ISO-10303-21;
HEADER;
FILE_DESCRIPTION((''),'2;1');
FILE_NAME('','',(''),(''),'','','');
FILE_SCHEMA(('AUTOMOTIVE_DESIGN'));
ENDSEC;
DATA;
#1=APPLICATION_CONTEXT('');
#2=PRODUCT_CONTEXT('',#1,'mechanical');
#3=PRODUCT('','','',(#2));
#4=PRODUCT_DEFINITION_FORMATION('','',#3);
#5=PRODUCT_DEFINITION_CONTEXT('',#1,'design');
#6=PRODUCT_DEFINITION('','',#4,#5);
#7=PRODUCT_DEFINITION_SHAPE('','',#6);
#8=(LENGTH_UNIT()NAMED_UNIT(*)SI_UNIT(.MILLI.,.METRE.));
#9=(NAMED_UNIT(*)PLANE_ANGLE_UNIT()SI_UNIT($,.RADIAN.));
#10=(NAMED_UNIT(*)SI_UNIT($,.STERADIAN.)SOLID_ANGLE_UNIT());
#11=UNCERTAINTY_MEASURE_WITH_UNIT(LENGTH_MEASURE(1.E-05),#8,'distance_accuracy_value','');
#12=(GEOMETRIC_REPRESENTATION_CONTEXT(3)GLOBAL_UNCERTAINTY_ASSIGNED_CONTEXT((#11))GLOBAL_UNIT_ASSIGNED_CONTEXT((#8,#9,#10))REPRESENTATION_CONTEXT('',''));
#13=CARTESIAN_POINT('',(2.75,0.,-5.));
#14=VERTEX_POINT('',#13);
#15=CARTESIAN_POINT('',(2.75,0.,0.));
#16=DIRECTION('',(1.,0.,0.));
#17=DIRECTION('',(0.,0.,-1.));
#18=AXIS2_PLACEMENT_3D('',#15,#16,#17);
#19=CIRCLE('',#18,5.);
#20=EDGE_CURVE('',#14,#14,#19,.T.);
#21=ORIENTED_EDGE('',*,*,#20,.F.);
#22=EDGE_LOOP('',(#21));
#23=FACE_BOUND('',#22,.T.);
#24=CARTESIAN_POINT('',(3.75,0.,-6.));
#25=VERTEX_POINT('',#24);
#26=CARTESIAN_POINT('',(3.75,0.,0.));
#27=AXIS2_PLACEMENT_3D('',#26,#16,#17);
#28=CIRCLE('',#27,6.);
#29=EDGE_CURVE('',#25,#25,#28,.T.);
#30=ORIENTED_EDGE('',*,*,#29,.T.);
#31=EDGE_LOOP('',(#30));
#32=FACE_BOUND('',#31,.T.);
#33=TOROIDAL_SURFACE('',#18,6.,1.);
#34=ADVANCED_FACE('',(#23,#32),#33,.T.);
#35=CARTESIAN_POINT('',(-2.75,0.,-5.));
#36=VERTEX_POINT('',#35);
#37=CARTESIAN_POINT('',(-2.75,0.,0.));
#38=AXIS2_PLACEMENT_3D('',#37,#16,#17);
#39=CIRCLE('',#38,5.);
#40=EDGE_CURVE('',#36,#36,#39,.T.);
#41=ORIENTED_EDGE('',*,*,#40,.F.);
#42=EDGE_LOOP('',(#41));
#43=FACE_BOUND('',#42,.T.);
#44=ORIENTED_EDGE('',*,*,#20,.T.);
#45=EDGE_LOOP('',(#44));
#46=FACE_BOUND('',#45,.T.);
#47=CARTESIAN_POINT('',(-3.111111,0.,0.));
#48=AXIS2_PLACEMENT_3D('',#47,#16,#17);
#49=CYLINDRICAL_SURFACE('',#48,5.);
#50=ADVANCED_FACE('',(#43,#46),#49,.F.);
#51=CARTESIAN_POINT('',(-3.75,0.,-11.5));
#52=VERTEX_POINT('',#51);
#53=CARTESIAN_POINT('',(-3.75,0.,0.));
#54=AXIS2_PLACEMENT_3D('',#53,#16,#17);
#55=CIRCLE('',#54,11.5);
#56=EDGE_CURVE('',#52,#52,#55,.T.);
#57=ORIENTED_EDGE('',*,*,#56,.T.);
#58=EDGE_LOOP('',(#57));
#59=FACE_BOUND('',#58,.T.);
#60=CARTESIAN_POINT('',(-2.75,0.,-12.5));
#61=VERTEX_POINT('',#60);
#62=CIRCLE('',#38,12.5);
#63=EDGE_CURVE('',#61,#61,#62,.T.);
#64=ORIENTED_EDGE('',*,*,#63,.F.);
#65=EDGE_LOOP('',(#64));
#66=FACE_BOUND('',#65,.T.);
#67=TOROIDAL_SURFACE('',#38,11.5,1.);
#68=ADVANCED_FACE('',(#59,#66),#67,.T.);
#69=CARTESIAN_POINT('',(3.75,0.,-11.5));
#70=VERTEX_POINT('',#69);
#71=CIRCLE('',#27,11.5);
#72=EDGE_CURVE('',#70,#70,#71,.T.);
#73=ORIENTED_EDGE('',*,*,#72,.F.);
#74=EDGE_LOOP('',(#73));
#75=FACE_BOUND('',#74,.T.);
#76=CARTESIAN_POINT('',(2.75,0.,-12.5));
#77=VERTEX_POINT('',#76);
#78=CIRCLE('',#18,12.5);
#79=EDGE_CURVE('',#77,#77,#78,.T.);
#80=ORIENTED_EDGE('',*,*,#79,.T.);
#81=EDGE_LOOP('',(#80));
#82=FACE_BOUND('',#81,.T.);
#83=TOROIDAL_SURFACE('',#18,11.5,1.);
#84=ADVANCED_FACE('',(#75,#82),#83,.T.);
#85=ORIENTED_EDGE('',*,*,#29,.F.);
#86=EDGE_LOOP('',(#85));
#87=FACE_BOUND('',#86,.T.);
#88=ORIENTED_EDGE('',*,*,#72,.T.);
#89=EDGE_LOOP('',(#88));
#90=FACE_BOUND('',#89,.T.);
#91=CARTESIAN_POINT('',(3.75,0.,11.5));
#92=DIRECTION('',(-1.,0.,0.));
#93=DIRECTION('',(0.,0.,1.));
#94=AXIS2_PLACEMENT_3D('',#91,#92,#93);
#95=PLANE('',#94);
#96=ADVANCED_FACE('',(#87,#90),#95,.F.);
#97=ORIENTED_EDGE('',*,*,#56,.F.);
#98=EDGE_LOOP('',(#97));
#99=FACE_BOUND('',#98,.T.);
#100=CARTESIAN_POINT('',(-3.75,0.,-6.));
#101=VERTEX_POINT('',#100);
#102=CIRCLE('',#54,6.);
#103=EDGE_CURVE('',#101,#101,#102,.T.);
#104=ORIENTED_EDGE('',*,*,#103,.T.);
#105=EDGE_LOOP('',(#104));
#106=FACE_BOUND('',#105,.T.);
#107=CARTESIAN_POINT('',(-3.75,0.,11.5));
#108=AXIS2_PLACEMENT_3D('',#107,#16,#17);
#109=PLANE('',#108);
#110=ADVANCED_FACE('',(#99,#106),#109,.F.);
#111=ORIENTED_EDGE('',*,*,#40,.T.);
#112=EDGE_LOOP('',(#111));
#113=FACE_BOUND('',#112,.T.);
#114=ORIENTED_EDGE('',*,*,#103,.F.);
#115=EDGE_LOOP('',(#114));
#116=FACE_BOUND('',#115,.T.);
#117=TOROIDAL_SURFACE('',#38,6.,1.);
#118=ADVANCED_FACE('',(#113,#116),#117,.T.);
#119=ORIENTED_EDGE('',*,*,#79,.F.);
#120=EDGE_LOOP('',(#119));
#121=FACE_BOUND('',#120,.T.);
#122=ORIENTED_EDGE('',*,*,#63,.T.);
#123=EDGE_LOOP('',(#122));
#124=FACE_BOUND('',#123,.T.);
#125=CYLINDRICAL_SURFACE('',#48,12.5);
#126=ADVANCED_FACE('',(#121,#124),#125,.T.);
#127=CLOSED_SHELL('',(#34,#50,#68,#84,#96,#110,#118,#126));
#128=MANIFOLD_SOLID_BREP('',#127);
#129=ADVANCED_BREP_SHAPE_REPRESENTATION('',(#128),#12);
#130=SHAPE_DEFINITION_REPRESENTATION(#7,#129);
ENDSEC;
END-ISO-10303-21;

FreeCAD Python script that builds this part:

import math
import FreeCAD as App
import Part
import Sketcher
Q = App.Units.Quantity

doc = App.newDocument("Part")
params = doc.addObject("Spreadsheet::Sheet", "Params")
for row, (alias, value) in enumerate([
    ("sketch1_radius", "1 mm"),
    ("sketch1_width", "5.5 mm"),
    ("revolution_angle", "360 deg"),
], start=1):
    params.set(f"A{row}", alias)
    params.set(f"B{row}", "=" + value)
    params.setAlias(f"B{row}", alias)

body = doc.addObject("PartDesign::Body", "Body")

# Sketch on XZ plane
sketch1 = body.newObject("Sketcher::SketchObject", "Sketch")
sketch1.AttachmentSupport = (doc.getObject("XZ_Plane"), [""])
sketch1.MapMode = "FlatFace"
sketch1.addGeometry([
    Part.LineSegment(App.Vector(-2.75, 12.5, 0), App.Vector(2.75, 12.5, 0)),  # 0
    Part.ArcOfCircle(Part.Circle(App.Vector(2.75, 11.5, 0), App.Vector(0, 0, 1), 1), math.radians(0), math.radians(90)),  # 1
    Part.LineSegment(App.Vector(3.75, 11.5, 0), App.Vector(3.75, 6, 0)),  # 2
    Part.ArcOfCircle(Part.Circle(App.Vector(2.75, 6, 0), App.Vector(0, 0, 1), 1), math.radians(-90), math.radians(0)),  # 3
    Part.LineSegment(App.Vector(2.75, 5, 0), App.Vector(-2.75, 5, 0)),  # 4
    Part.ArcOfCircle(Part.Circle(App.Vector(-2.75, 6, 0), App.Vector(0, 0, 1), 1), math.radians(-180), math.radians(-90)),  # 5
    Part.LineSegment(App.Vector(-3.75, 6, 0), App.Vector(-3.75, 11.5, 0)),  # 6
    Part.ArcOfCircle(Part.Circle(App.Vector(-2.75, 11.5, 0), App.Vector(0, 0, 1), 1), math.radians(90), math.radians(180)),  # 7
], False)
sketch1.addConstraint([
    Sketcher.Constraint("Tangent", 0, 2, 1, 2),
    Sketcher.Constraint("Tangent", 1, 1, 2, 1),
    Sketcher.Constraint("Tangent", 2, 2, 3, 2),
    Sketcher.Constraint("Tangent", 3, 1, 4, 1),
    Sketcher.Constraint("Tangent", 4, 2, 5, 2),
    Sketcher.Constraint("Tangent", 5, 1, 6, 1),
    Sketcher.Constraint("Tangent", 6, 2, 7, 2),
    Sketcher.Constraint("Tangent", 7, 1, 0, 1),
    Sketcher.Constraint("Horizontal", 0),
    Sketcher.Constraint("Vertical", 2),
    Sketcher.Constraint("Horizontal", 4),
    Sketcher.Constraint("Vertical", 6),
    Sketcher.Constraint("Equal", 1, 3),
    Sketcher.Constraint("Equal", 3, 5),
    Sketcher.Constraint("Equal", 5, 7),
    Sketcher.Constraint("Equal", 4, 2),
    Sketcher.Constraint("Radius", 1, Q("1 mm")),
    Sketcher.Constraint("DistanceX", 0, 1, 0, 2, Q("5.5 mm")),
    Sketcher.Constraint("DistanceY", -1, 1, 3, 3, Q("6 mm")),
    Sketcher.Constraint("DistanceX", -1, 1, 1, 3, Q("2.75 mm")),
])
sketch1.setExpression("Constraints[16]", "Params.sketch1_radius")
sketch1.setExpression("Constraints[17]", "Params.sketch1_width")
revolution = body.newObject("PartDesign::Revolution", "Revolution")
revolution.Profile = sketch1
revolution.ReferenceAxis = (sketch1, ["H_Axis"])
revolution.setExpression("Angle", "Params.revolution_angle")

doc.recompute()
